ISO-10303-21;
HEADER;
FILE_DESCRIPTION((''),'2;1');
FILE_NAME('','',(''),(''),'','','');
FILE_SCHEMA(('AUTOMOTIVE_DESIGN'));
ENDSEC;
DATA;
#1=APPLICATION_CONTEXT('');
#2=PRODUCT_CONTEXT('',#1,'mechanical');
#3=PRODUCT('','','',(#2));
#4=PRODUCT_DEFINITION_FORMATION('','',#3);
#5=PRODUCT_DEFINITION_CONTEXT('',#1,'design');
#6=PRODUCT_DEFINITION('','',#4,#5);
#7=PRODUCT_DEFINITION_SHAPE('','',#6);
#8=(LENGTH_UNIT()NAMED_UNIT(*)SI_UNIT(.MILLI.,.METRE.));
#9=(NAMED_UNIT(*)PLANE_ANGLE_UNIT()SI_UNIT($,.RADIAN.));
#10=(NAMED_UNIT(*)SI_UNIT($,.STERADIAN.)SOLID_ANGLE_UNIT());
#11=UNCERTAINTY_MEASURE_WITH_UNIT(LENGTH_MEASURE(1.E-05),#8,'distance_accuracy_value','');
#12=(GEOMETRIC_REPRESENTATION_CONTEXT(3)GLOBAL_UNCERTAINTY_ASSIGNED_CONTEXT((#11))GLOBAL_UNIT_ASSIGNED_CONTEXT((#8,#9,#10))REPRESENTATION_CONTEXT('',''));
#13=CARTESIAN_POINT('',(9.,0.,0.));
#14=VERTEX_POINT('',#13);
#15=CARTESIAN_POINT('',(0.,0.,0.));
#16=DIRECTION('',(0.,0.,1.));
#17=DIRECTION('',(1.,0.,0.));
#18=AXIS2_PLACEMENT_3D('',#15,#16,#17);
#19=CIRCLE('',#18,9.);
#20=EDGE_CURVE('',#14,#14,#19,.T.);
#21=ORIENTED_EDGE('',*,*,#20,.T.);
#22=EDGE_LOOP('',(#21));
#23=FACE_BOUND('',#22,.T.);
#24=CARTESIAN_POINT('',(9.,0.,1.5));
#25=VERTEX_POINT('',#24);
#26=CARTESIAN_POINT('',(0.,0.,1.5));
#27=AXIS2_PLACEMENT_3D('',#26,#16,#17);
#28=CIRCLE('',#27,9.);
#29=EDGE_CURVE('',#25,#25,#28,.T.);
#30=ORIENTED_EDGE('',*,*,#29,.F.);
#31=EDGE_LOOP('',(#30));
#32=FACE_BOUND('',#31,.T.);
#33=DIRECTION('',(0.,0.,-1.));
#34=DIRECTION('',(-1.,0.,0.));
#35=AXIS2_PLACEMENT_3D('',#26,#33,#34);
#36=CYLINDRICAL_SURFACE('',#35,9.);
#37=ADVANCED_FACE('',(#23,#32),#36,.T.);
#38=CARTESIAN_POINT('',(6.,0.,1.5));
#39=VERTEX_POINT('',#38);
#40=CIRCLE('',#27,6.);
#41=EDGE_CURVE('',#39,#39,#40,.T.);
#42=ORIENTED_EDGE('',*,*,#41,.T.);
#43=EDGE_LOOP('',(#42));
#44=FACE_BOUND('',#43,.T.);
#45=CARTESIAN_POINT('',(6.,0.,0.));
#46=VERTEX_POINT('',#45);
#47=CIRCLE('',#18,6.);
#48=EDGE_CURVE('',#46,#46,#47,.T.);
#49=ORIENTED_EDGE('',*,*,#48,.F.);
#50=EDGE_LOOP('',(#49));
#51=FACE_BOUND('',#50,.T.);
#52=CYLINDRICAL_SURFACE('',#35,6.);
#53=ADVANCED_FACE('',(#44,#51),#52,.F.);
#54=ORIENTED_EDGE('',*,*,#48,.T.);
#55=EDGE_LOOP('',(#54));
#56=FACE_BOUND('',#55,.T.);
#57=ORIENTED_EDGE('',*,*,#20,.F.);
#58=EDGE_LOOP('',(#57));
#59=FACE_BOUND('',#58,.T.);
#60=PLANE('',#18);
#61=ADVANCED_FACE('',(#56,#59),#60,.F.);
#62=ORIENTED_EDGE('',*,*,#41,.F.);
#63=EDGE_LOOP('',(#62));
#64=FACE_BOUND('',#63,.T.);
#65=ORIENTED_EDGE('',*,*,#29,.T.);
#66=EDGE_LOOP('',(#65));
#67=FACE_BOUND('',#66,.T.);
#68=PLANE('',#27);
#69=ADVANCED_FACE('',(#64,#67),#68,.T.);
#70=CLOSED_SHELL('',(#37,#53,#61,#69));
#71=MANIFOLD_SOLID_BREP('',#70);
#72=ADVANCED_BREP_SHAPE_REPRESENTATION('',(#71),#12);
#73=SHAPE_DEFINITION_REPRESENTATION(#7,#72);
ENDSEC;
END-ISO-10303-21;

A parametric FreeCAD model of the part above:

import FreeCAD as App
import Part
import Sketcher
from FreeCAD import Vector
Q = App.Units.Quantity

doc = App.newDocument("Part")
params = doc.addObject("Spreadsheet::Sheet", "Params")
for row, (alias, value) in enumerate([
    ("sketch1_diameter", "18 mm"),
    ("sketch1_diameter2", "12 mm"),
    ("pad1_length", "1.5 mm"),
], start=1):
    params.set(f"A{row}", alias)
    params.set(f"B{row}", "=" + value)
    params.setAlias(f"B{row}", alias)

body = doc.addObject("PartDesign::Body", "Body")

sketch1 = doc.addObject("Sketcher::SketchObject", "Sketch")
body.addObject(sketch1)
sketch1.AttachmentSupport = (doc.XY_Plane, [""])
sketch1.MapMode = "FlatFace"
sketch1.addGeometry(Part.Circle(Vector(0, 0, 0), Vector(0, 0, 1), 9), False)
sketch1.addGeometry(Part.Circle(Vector(0, 0, 0), Vector(0, 0, 1), 6), False)
sketch1.addConstraint(Sketcher.Constraint("Coincident", 0, 3, -1, 1))
sketch1.addConstraint(Sketcher.Constraint("Coincident", 1, 3, -1, 1))
sketch1.addConstraint(Sketcher.Constraint("Diameter", 0, Q("18 mm")))
sketch1.addConstraint(Sketcher.Constraint("Diameter", 1, Q("12 mm")))
sketch1.setExpression("Constraints[2]", "Params.sketch1_diameter")
sketch1.setExpression("Constraints[3]", "Params.sketch1_diameter2")
pad1 = doc.addObject("PartDesign::Pad", "Pad")
body.addObject(pad1)
pad1.Profile = sketch1
pad1.setExpression("Length", "Params.pad1_length")

doc.recompute()
